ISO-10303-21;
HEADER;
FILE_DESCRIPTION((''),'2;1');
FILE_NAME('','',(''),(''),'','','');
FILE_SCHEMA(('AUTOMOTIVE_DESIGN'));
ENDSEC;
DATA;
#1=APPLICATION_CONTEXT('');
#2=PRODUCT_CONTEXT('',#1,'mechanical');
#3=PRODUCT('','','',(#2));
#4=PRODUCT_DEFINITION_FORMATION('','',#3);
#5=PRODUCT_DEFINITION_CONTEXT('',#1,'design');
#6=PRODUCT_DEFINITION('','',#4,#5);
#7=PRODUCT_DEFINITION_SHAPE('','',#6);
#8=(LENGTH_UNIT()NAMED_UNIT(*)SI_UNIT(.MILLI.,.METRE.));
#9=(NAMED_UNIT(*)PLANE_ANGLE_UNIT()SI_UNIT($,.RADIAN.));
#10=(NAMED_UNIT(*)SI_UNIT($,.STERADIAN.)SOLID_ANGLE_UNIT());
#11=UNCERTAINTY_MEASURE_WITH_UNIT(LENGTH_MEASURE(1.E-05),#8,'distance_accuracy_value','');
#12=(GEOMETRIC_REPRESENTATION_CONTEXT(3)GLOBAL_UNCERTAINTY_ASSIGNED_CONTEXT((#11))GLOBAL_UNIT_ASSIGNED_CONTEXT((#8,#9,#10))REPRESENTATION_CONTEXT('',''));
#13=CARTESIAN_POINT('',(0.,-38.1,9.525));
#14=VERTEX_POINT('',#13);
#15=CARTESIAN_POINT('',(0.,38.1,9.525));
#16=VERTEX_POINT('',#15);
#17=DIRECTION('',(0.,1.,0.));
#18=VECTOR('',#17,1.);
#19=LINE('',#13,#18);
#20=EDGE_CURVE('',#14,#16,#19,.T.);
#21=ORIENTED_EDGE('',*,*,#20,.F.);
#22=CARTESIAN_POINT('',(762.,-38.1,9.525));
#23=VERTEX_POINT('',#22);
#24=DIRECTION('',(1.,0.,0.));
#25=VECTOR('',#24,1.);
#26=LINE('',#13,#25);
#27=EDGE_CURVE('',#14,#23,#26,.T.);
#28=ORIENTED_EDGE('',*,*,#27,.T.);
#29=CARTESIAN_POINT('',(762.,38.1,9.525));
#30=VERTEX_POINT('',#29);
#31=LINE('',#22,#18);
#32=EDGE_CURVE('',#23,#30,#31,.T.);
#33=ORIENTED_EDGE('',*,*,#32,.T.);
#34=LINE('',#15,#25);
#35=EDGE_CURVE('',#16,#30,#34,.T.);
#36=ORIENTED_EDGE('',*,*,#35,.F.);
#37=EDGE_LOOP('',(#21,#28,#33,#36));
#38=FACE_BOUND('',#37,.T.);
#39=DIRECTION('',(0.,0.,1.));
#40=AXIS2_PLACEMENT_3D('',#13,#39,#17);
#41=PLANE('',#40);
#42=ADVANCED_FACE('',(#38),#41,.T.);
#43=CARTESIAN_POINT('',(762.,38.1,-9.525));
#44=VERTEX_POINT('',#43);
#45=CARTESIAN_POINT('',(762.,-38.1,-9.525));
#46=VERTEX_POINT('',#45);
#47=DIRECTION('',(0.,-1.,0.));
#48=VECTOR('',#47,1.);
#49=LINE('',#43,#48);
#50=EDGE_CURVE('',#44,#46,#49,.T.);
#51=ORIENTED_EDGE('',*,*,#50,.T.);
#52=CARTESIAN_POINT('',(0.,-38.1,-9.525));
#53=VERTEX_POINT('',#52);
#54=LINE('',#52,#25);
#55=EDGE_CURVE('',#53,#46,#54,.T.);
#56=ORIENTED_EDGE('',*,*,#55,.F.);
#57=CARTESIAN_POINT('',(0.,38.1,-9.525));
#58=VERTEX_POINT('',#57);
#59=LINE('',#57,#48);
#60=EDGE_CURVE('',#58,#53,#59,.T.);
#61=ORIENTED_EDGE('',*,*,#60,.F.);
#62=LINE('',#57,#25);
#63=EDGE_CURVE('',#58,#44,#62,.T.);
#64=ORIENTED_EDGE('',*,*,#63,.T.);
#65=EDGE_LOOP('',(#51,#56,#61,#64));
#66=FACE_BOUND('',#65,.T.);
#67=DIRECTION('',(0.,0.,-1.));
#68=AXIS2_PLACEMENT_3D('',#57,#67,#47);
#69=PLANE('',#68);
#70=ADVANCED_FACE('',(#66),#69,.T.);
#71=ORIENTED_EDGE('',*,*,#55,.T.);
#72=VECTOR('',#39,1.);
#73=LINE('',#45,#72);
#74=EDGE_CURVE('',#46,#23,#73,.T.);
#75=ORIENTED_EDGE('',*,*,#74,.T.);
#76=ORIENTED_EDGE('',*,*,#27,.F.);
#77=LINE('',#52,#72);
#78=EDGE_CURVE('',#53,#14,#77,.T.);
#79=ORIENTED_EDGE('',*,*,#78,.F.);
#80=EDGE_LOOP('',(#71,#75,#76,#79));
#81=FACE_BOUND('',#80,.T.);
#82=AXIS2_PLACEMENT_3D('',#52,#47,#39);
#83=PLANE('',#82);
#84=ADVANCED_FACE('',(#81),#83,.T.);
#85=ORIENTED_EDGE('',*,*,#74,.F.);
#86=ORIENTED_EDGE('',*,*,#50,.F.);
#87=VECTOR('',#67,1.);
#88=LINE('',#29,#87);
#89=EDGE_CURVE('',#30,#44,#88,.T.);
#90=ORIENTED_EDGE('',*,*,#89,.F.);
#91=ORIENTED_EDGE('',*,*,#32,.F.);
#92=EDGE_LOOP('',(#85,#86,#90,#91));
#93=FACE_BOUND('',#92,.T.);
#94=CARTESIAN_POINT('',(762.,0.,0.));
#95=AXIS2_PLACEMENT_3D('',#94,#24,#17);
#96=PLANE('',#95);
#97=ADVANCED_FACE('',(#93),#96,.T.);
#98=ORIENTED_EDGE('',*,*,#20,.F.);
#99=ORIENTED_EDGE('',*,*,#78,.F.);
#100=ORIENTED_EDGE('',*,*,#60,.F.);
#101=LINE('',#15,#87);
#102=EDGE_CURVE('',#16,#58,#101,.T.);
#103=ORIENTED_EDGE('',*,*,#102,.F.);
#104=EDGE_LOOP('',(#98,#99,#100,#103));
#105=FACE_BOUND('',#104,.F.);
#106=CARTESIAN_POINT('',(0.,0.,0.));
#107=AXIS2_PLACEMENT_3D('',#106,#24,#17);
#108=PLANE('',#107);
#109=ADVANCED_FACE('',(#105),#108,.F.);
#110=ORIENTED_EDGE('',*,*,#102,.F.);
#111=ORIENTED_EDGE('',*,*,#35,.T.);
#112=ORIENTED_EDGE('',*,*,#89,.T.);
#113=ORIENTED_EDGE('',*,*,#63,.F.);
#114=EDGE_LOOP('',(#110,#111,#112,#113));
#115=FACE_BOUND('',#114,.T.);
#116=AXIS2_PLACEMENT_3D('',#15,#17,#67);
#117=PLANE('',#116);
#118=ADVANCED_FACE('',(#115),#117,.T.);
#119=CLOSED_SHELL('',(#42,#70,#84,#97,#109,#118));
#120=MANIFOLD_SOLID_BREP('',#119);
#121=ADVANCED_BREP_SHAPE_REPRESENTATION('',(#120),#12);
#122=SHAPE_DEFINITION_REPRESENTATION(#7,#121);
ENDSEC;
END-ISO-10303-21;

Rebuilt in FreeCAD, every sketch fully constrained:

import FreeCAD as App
import Part
import Sketcher

V = App.Vector
Q = App.Units.Quantity


def add_polygon(sketch, points):
    """Adds a closed chain of lines whose ends are joined by coincident constraints."""
    first, n = sketch.GeometryCount, len(points)
    for a, b in zip(points, points[1:] + points[:1]):
        sketch.addGeometry(Part.LineSegment(App.Vector(*a, 0), App.Vector(*b, 0)), False)
    for i in range(n):
        sketch.addConstraint(Sketcher.Constraint("Coincident", first + i, 2, first + (i + 1) % n, 1))

doc = App.newDocument("Part")
body = doc.addObject("PartDesign::Body", "Body")

# Sketch on YZ plane
sketch1 = body.newObject("Sketcher::SketchObject", "Sketch")
sketch1.AttachmentSupport = (doc.getObject("YZ_Plane"), [""])
sketch1.MapMode = "FlatFace"
add_polygon(sketch1, [(38, 10), (-38, 10), (-38, -10), (38, -10)])  # lines 0-3
sketch1.addConstraint([
    Sketcher.Constraint("Horizontal", 0),
    Sketcher.Constraint("Vertical", 1),
    Sketcher.Constraint("Horizontal", 2),
    Sketcher.Constraint("Vertical", 3),
    Sketcher.Constraint("Symmetric", 0, 2, 2, 2, -1, 1),
    Sketcher.Constraint("DistanceX", 0, 2, 0, 1, Q("3 in")),
    Sketcher.Constraint("DistanceY", 1, 2, 1, 1, Q("0.75 in")),
])
pad1 = body.newObject("PartDesign::Pad", "Pad")
pad1.Profile = sketch1
pad1.Length = Q("30 in")

doc.recompute()
